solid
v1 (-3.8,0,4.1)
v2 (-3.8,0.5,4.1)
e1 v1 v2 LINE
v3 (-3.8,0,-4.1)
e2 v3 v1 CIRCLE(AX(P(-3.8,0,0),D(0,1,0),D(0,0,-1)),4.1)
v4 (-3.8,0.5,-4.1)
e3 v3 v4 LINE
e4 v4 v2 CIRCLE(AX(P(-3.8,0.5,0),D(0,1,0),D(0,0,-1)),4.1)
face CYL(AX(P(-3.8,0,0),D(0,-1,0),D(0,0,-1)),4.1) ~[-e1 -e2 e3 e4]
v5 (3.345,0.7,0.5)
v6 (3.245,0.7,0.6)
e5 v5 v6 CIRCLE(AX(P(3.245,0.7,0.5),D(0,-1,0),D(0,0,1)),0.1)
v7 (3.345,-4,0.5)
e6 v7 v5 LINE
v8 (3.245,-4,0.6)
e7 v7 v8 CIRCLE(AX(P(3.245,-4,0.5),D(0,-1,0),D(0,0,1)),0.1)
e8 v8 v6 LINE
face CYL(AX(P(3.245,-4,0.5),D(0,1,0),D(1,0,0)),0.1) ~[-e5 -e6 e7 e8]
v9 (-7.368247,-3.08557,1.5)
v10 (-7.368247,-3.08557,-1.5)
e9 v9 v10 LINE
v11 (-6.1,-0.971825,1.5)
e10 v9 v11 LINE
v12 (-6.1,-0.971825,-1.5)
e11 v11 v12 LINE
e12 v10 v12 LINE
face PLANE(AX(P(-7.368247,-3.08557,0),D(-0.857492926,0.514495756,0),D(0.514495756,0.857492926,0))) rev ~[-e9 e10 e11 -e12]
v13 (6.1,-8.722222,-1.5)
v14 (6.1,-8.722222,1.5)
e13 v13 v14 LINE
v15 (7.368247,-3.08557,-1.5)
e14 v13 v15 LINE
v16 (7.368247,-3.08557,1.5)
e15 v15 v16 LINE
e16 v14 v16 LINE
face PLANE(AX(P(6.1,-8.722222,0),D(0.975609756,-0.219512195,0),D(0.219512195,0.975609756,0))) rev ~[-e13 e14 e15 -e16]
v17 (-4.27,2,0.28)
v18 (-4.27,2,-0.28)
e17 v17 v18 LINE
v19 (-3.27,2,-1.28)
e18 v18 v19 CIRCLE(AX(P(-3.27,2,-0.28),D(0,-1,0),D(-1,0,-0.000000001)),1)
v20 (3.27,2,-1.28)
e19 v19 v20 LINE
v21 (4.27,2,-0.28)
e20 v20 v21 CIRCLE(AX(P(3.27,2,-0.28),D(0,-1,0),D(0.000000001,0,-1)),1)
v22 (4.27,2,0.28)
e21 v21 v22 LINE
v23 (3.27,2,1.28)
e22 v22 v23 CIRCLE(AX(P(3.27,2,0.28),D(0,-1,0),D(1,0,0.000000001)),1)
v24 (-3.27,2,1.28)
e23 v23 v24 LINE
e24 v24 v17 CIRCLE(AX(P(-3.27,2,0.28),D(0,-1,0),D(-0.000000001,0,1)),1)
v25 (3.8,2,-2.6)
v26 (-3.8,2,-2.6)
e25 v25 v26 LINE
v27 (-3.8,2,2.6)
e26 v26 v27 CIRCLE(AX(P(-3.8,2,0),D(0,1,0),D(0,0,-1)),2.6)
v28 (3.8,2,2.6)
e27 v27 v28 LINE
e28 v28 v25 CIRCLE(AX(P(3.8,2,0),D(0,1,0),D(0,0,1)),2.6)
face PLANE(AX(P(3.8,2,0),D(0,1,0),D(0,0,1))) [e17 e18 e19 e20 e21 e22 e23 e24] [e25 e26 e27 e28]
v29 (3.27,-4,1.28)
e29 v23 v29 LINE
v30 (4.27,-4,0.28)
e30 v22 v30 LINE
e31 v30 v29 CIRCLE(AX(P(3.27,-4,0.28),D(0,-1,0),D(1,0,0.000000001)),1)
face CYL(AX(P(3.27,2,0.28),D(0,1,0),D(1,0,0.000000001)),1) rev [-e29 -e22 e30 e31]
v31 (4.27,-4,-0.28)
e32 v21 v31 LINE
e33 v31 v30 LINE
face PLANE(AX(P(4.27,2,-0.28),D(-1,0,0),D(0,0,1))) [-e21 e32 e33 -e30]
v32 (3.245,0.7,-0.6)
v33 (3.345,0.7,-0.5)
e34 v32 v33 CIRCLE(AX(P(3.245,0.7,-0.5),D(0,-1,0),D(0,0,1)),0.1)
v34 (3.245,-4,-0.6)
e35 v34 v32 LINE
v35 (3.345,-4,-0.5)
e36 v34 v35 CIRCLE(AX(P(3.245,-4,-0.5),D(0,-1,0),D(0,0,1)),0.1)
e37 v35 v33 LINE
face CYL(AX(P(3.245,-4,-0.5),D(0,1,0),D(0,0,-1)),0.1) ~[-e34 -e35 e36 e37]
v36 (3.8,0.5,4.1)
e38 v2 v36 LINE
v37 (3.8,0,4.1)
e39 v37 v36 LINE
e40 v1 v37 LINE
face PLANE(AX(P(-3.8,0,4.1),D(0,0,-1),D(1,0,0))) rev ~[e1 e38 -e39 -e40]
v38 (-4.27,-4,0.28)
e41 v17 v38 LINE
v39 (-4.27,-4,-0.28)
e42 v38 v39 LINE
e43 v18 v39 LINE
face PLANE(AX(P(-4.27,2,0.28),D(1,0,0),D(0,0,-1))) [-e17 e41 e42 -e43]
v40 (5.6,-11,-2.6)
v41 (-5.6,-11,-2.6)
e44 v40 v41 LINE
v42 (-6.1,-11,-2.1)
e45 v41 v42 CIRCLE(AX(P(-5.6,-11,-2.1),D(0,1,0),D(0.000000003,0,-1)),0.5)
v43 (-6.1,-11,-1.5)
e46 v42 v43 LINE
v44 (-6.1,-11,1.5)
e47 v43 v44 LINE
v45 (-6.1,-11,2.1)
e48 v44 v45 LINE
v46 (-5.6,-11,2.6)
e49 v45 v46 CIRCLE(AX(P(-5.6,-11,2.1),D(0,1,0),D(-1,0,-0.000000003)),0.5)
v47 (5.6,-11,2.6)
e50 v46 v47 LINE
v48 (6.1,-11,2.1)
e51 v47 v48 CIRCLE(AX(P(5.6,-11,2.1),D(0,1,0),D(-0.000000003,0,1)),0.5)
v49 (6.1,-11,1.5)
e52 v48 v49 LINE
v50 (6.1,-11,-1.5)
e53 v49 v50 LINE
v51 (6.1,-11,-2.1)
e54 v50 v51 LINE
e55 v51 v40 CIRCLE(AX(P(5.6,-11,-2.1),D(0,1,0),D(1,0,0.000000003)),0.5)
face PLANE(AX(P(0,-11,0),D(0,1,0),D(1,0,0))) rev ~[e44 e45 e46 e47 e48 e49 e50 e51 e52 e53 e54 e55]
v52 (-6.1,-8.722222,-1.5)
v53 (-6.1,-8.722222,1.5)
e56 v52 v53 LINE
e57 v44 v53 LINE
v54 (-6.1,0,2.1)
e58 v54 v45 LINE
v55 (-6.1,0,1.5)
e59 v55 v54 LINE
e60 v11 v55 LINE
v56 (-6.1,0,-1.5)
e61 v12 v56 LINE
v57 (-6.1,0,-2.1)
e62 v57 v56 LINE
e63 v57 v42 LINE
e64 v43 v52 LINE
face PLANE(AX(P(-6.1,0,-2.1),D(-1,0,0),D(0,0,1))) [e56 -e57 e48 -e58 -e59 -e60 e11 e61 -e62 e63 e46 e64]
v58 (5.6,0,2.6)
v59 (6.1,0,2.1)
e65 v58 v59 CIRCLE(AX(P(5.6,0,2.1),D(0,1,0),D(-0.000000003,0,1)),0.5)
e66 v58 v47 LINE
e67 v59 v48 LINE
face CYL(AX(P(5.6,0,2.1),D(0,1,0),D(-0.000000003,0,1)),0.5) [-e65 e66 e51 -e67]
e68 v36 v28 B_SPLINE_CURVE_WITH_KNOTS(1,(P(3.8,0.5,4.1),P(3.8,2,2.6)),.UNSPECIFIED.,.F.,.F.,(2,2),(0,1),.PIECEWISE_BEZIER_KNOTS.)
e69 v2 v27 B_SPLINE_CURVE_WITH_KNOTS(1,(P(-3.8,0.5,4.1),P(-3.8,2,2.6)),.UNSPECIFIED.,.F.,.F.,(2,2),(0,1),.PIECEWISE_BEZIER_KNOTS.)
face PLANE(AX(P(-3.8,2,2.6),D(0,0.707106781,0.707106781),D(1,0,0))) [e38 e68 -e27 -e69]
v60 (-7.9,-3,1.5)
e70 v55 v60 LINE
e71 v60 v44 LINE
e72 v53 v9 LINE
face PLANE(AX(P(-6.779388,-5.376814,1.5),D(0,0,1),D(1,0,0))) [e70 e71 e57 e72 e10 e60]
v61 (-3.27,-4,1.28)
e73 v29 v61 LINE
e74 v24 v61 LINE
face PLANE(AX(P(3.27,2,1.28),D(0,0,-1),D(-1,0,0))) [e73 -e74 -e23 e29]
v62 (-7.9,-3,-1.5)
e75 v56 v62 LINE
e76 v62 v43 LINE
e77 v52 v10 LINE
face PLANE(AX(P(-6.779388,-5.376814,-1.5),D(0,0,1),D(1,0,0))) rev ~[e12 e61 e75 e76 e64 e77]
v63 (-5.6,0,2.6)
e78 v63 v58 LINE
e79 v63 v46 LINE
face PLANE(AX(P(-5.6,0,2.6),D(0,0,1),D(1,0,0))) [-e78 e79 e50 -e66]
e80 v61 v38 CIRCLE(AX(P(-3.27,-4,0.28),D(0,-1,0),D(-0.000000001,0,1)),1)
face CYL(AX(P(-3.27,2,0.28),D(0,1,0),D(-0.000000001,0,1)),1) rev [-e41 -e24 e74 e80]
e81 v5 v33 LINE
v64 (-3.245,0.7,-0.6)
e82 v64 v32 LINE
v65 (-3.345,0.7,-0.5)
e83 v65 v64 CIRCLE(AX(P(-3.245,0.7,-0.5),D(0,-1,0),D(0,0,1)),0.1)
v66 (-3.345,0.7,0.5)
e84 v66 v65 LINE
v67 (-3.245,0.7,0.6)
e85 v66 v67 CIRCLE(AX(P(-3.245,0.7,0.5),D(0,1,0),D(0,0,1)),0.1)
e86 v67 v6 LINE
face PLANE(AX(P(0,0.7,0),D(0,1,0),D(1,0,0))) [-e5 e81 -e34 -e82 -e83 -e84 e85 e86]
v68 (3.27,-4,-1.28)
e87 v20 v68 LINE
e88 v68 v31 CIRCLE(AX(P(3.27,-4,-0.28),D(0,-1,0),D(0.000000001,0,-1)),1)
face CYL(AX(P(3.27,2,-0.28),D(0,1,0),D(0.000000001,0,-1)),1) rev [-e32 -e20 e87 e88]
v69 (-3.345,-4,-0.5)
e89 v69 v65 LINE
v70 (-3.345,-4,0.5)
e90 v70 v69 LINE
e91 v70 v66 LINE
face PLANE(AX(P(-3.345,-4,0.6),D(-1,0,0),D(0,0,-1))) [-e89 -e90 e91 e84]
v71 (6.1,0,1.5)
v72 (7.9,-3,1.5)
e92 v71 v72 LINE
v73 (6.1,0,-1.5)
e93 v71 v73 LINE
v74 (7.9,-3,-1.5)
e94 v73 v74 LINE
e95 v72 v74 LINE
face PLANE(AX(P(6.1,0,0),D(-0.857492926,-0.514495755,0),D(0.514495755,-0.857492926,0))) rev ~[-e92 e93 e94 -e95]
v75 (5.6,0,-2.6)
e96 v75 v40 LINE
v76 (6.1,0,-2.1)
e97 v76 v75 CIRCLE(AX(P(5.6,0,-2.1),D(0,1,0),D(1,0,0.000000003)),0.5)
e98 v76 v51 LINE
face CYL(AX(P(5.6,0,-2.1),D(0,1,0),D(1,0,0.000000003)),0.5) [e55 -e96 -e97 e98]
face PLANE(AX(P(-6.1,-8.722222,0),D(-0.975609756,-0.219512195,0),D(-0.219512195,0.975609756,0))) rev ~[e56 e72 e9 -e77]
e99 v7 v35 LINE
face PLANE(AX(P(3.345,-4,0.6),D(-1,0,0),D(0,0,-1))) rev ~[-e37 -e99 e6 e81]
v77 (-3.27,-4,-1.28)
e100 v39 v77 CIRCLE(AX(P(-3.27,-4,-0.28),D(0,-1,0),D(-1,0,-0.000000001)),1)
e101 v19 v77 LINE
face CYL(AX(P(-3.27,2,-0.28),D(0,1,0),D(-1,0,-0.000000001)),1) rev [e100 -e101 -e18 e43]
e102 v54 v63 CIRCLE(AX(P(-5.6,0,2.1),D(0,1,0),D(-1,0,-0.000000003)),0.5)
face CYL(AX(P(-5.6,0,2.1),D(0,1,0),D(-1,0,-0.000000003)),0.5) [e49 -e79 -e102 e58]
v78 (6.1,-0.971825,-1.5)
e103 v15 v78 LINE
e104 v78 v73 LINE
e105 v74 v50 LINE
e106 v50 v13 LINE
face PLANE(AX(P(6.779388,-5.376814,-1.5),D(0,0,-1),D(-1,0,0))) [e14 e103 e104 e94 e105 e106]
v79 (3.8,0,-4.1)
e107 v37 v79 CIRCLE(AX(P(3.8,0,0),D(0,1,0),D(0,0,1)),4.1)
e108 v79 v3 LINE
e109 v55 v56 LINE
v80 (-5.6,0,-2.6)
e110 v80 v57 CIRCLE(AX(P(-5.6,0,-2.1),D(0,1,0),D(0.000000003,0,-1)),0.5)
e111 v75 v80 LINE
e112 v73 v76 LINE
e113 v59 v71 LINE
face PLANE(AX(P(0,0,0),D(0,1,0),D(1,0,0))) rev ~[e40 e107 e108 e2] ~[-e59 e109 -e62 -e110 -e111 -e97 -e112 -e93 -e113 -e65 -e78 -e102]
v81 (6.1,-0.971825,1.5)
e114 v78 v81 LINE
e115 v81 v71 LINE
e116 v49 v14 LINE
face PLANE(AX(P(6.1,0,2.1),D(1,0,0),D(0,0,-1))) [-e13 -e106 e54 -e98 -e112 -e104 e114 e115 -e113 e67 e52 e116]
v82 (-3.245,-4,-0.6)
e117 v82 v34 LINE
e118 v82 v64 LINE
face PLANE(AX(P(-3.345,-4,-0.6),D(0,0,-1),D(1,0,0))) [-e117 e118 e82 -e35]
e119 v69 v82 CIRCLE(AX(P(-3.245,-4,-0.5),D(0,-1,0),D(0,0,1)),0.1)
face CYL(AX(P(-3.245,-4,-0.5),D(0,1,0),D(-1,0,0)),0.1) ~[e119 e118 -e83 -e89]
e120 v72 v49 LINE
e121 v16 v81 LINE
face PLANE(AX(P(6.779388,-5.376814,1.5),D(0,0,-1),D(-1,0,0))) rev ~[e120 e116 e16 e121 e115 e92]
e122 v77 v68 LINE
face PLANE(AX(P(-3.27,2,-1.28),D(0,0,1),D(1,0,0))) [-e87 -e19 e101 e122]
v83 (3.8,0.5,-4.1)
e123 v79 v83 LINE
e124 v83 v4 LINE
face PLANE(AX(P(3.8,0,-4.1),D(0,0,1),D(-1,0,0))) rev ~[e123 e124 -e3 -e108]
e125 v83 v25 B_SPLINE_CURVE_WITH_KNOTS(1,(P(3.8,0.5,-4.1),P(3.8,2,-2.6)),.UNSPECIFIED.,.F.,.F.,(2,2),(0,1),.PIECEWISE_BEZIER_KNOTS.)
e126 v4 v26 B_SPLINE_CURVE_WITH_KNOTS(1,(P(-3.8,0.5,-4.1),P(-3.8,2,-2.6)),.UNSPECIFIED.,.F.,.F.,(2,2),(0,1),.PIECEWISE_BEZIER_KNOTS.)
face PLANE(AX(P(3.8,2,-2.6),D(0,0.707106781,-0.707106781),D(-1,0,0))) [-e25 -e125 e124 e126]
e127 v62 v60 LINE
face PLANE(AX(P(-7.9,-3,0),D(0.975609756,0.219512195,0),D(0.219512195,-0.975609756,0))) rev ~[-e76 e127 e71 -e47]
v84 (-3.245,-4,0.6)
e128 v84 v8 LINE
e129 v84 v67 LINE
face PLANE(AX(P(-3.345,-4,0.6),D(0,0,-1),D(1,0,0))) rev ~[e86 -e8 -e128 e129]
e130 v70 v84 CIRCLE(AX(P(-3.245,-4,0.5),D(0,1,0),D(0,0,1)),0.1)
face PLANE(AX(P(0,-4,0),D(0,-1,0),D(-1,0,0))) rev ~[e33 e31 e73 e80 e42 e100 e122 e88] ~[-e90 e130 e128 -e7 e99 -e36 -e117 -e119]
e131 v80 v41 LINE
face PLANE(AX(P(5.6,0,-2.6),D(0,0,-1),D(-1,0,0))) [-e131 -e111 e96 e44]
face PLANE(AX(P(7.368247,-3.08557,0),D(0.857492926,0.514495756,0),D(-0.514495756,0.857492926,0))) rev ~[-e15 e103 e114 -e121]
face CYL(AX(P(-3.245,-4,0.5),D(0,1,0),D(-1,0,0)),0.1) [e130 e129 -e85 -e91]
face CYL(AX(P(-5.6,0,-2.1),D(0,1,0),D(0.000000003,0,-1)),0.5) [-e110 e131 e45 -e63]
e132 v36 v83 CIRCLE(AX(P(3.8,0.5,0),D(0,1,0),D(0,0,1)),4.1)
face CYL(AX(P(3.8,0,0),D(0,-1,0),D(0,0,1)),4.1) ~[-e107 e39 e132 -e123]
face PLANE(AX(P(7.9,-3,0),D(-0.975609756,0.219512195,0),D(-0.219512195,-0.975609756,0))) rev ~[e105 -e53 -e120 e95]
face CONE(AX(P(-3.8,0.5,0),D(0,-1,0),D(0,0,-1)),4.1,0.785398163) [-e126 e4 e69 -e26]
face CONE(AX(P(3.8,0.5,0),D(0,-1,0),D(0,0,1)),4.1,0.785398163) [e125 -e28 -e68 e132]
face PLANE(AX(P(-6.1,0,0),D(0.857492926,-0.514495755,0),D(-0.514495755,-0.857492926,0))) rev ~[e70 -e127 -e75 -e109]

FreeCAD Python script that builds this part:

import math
import FreeCAD as App
import Part
import Sketcher

V = App.Vector


def edges_at(feature, points):
    """Names of the edges that pass closest to the given points."""
    edges = feature.Shape.Edges
    near = lambda p: min(range(len(edges)), key=lambda i: edges[i].distToShape(Part.Vertex(*p))[0])
    return sorted({f"Edge{near(p) + 1}" for p in points})


def add_polygon(sketch, points):
    """Adds a closed chain of lines whose ends are joined by coincident constraints."""
    first, n = sketch.GeometryCount, len(points)
    for a, b in zip(points, points[1:] + points[:1]):
        sketch.addGeometry(Part.LineSegment(App.Vector(*a, 0), App.Vector(*b, 0)), False)
    for i in range(n):
        sketch.addConstraint(Sketcher.Constraint("Coincident", first + i, 2, first + (i + 1) % n, 1))

doc = App.newDocument("Part")
params = doc.addObject("Spreadsheet::Sheet", "Params")
for row, (alias, value) in enumerate([
    ("sketch1_radius", "0.5 mm"),
    ("sketch1_width", "11.2 mm"),
    ("sketch1_height", "4.2 mm"),
    ("pad1_length", "11 mm"),
    ("sketch2_radius", "4.1 mm"),
    ("sketch2_width", "7.6 mm"),
    ("pad2_length", "0.5 mm"),
    ("sketch3_radius", "4.1 mm"),
    ("sketch3_width", "7.6 mm"),
    ("pad3_length", "1.5 mm"),
    ("pad3_taper", "-45 deg"),
    ("sketch4_radius", "1 mm"),
    ("sketch4_width", "6.54 mm"),
    ("sketch4_height", "0.56 mm"),
    ("pocket1_length", "6 mm"),
    ("sketch5_height", "1.2 mm"),
    ("sketch5_width", "6.69 mm"),
    ("pad4_length", "4.7 mm"),
    ("fillet_radius", "0.1 mm"),
    ("sketch6_length", "8.2 mm"),
    ("pad5_length", "3 mm"),
], start=1):
    params.set(f"A{row}", alias)
    params.set(f"B{row}", "=" + value)
    params.setAlias(f"B{row}", alias)

body = doc.addObject("PartDesign::Body", "Body")

sketch1 = body.newObject("Sketcher::SketchObject", "Sketch")
sketch1.AttachmentSupport = (doc.getObject("XZ_Plane"), [""])
sketch1.MapMode = "FlatFace"
sketch1.addGeometry([
    Part.LineSegment(V(-5.6, 2.6, 0), V(5.6, 2.6, 0)),
    Part.ArcOfCircle(Part.Circle(V(5.6, 2.1, 0), V(0, 0, 1), 0.5), math.radians(0), math.radians(90)),
    Part.LineSegment(V(6.1, 2.1, 0), V(6.1, -2.1, 0)),
    Part.ArcOfCircle(Part.Circle(V(5.6, -2.1, 0), V(0, 0, 1), 0.5), math.radians(-90), math.radians(0)),
    Part.LineSegment(V(5.6, -2.6, 0), V(-5.6, -2.6, 0)),
    Part.ArcOfCircle(Part.Circle(V(-5.6, -2.1, 0), V(0, 0, 1), 0.5), math.radians(180), math.radians(270)),
    Part.LineSegment(V(-6.1, -2.1, 0), V(-6.1, 2.1, 0)),
    Part.ArcOfCircle(Part.Circle(V(-5.6, 2.1, 0), V(0, 0, 1), 0.5), math.radians(90), math.radians(180)),
], False)
sketch1.addConstraint([
    Sketcher.Constraint("Tangent", 0, 2, 1, 2),
    Sketcher.Constraint("Tangent", 1, 1, 2, 1),
    Sketcher.Constraint("Tangent", 2, 2, 3, 2),
    Sketcher.Constraint("Tangent", 3, 1, 4, 1),
    Sketcher.Constraint("Tangent", 4, 2, 5, 2),
    Sketcher.Constraint("Tangent", 5, 1, 6, 1),
    Sketcher.Constraint("Tangent", 6, 2, 7, 2),
    Sketcher.Constraint("Tangent", 7, 1, 0, 1),
    Sketcher.Constraint("Horizontal", 0),
    Sketcher.Constraint("Vertical", 2),
    Sketcher.Constraint("Horizontal", 4),
    Sketcher.Constraint("Vertical", 6),
    Sketcher.Constraint("Equal", 1, 3),
    Sketcher.Constraint("Equal", 3, 5),
    Sketcher.Constraint("Equal", 5, 7),
    Sketcher.Constraint("Symmetric", 1, 3, 5, 3, -1, 1),
    Sketcher.Constraint("Radius", 1, 0.5),
    Sketcher.Constraint("DistanceX", 0, 1, 0, 2, 11.2),
    Sketcher.Constraint("DistanceY", 2, 2, 2, 1, 4.2),
])
sketch1.setExpression("Constraints[16]", "Params.sketch1_radius")
sketch1.setExpression("Constraints[17]", "Params.sketch1_width")
sketch1.setExpression("Constraints[18]", "Params.sketch1_height")
pad1 = body.newObject("PartDesign::Pad", "Pad")
pad1.Profile = sketch1
pad1.setExpression("Length", "Params.pad1_length")

sketch2 = body.newObject("Sketcher::SketchObject", "Sketch001")
sketch2.AttachmentSupport = (doc.getObject("XZ_Plane"), [""])
sketch2.MapMode = "FlatFace"
sketch2.addGeometry([
    Part.LineSegment(V(-3.8, 4.1, 0), V(3.8, 4.1, 0)),
    Part.ArcOfCircle(Part.Circle(V(3.8, 0, 0), V(0, 0, 1), 4.1), math.radians(-90), math.radians(90)),
    Part.LineSegment(V(3.8, -4.1, 0), V(-3.8, -4.1, 0)),
    Part.ArcOfCircle(Part.Circle(V(-3.8, 0, 0), V(0, 0, 1), 4.1), math.radians(90), math.radians(270)),
], False)
sketch2.addConstraint([
    Sketcher.Constraint("Tangent", 0, 2, 1, 2),
    Sketcher.Constraint("Tangent", 1, 1, 2, 1),
    Sketcher.Constraint("Tangent", 2, 2, 3, 2),
    Sketcher.Constraint("Tangent", 3, 1, 0, 1),
    Sketcher.Constraint("Horizontal", 0),
    Sketcher.Constraint("Horizontal", 2),
    Sketcher.Constraint("Symmetric", 1, 3, 3, 3, -1, 1),
    Sketcher.Constraint("Radius", 1, 4.1),
    Sketcher.Constraint("DistanceX", 0, 1, 0, 2, 7.6),
])
sketch2.setExpression("Constraints[7]", "Params.sketch2_radius")
sketch2.setExpression("Constraints[8]", "Params.sketch2_width")
pad2 = body.newObject("PartDesign::Pad", "Pad001")
pad2.Profile = sketch2
pad2.setExpression("Length", "Params.pad2_length")
pad2.Reversed = True

sketch3 = body.newObject("Sketcher::SketchObject", "Sketch002")
sketch3.AttachmentSupport = (doc.getObject("XZ_Plane"), [""])
sketch3.MapMode = "FlatFace"
sketch3.AttachmentOffset = App.Placement(V(0, 0, -0.5), App.Rotation())
sketch3.addGeometry([
    Part.LineSegment(V(-3.8, 4.1, 0), V(3.8, 4.1, 0)),
    Part.ArcOfCircle(Part.Circle(V(3.8, 0, 0), V(0, 0, 1), 4.1), math.radians(-90), math.radians(90)),
    Part.LineSegment(V(3.8, -4.1, 0), V(-3.8, -4.1, 0)),
    Part.ArcOfCircle(Part.Circle(V(-3.8, 0, 0), V(0, 0, 1), 4.1), math.radians(90), math.radians(270)),
], False)
sketch3.addConstraint([
    Sketcher.Constraint("Tangent", 0, 2, 1, 2),
    Sketcher.Constraint("Tangent", 1, 1, 2, 1),
    Sketcher.Constraint("Tangent", 2, 2, 3, 2),
    Sketcher.Constraint("Tangent", 3, 1, 0, 1),
    Sketcher.Constraint("Horizontal", 0),
    Sketcher.Constraint("Horizontal", 2),
    Sketcher.Constraint("Symmetric", 1, 3, 3, 3, -1, 1),
    Sketcher.Constraint("Radius", 1, 4.1),
    Sketcher.Constraint("DistanceX", 0, 1, 0, 2, 7.6),
])
sketch3.setExpression("Constraints[7]", "Params.sketch3_radius")
sketch3.setExpression("Constraints[8]", "Params.sketch3_width")
pad3 = body.newObject("PartDesign::Pad", "Pad002")
pad3.Profile = sketch3
pad3.setExpression("Length", "Params.pad3_length")
pad3.Reversed = True
pad3.setExpression("TaperAngle", "Params.pad3_taper")

sketch4 = body.newObject("Sketcher::SketchObject", "Sketch003")
sketch4.AttachmentSupport = (doc.getObject("XZ_Plane"), [""])
sketch4.MapMode = "FlatFace"
sketch4.AttachmentOffset = App.Placement(V(0, 0, -2), App.Rotation())
sketch4.addGeometry([
    Part.LineSegment(V(3.3, -1.3, 0), V(-3.3, -1.3, 0)),
    Part.ArcOfCircle(Part.Circle(V(-3.3, -0.3, 0), V(0, 0, 1), 1), math.radians(-180), math.radians(-90)),
    Part.LineSegment(V(-4.3, -0.3, 0), V(-4.3, 0.3, 0)),
    Part.ArcOfCircle(Part.Circle(V(-3.3, 0.3, 0), V(0, 0, 1), 1), math.radians(90), math.radians(180)),
    Part.LineSegment(V(-3.3, 1.3, 0), V(3.3, 1.3, 0)),
    Part.ArcOfCircle(Part.Circle(V(3.3, 0.3, 0), V(0, 0, 1), 1), math.radians(0), math.radians(90)),
    Part.LineSegment(V(4.3, 0.3, 0), V(4.3, -0.3, 0)),
    Part.ArcOfCircle(Part.Circle(V(3.3, -0.3, 0), V(0, 0, 1), 1), math.radians(-90), math.radians(0)),
], False)
sketch4.addConstraint([
    Sketcher.Constraint("Tangent", 0, 2, 1, 2),
    Sketcher.Constraint("Tangent", 1, 1, 2, 1),
    Sketcher.Constraint("Tangent", 2, 2, 3, 2),
    Sketcher.Constraint("Tangent", 3, 1, 4, 1),
    Sketcher.Constraint("Tangent", 4, 2, 5, 2),
    Sketcher.Constraint("Tangent", 5, 1, 6, 1),
    Sketcher.Constraint("Tangent", 6, 2, 7, 2),
    Sketcher.Constraint("Tangent", 7, 1, 0, 1),
    Sketcher.Constraint("Horizontal", 0),
    Sketcher.Constraint("Vertical", 2),
    Sketcher.Constraint("Horizontal", 4),
    Sketcher.Constraint("Vertical", 6),
    Sketcher.Constraint("Equal", 1, 3),
    Sketcher.Constraint("Equal", 3, 5),
    Sketcher.Constraint("Equal", 5, 7),
    Sketcher.Constraint("Symmetric", 1, 3, 5, 3, -1, 1),
    Sketcher.Constraint("Radius", 1, 1.0),
    Sketcher.Constraint("DistanceX", 0, 2, 0, 1, 6.54),
    Sketcher.Constraint("DistanceY", 2, 1, 2, 2, 0.56),
])
sketch4.setExpression("Constraints[16]", "Params.sketch4_radius")
sketch4.setExpression("Constraints[17]", "Params.sketch4_width")
sketch4.setExpression("Constraints[18]", "Params.sketch4_height")
pocket1 = body.newObject("PartDesign::Pocket", "Pocket")
pocket1.Profile = sketch4
pocket1.setExpression("Length", "Params.pocket1_length")
pocket1.Reversed = True

sketch5 = body.newObject("Sketcher::SketchObject", "Sketch004")
sketch5.AttachmentSupport = (doc.getObject("XZ_Plane"), [""])
sketch5.MapMode = "FlatFace"
sketch5.AttachmentOffset = App.Placement(V(0, 0, 4), App.Rotation())
add_polygon(sketch5, [(-3.3, -0.6), (-3.3, 0.6), (3.3, 0.6), (3.3, -0.6)])
sketch5.addConstraint([
    Sketcher.Constraint("Vertical", 0),
    Sketcher.Constraint("Horizontal", 1),
    Sketcher.Constraint("Vertical", 2),
    Sketcher.Constraint("Horizontal", 3),
    Sketcher.Constraint("Symmetric", 0, 2, 2, 2, -1, 1),
    Sketcher.Constraint("DistanceY", 0, 1, 0, 2, 1.2),
    Sketcher.Constraint("DistanceX", 1, 1, 1, 2, 6.69),
])
sketch5.setExpression("Constraints[9]", "Params.sketch5_height")
sketch5.setExpression("Constraints[10]", "Params.sketch5_width")
pad4 = body.newObject("PartDesign::Pad", "Pad003")
pad4.Profile = sketch5
pad4.setExpression("Length", "Params.pad4_length")
pad4.Reversed = True
doc.recompute()

fillet = body.newObject("PartDesign::Fillet", "Fillet")
fillet.Base = (pad4, edges_at(pad4, [
    (3.345, -1.65, 0.6),
    (3.345, -1.65, -0.6),
    (-3.345, -1.65, -0.6),
    (-3.345, -1.65, 0.6),
]))
fillet.setExpression("Radius", "Params.fillet_radius")

sketch6 = body.newObject("Sketcher::SketchObject", "Sketch005")
sketch6.AttachmentSupport = (doc.getObject("XY_Plane"), [""])
sketch6.MapMode = "FlatFace"
add_polygon(sketch6, [(-6.1, 0), (-7.9, -3), (-6.1, -11), (-6.1, -8.7), (-7.4, -3.1), (-6.1, -1)])
add_polygon(sketch6, [(6.1, 0), (6.1, -1), (7.4, -3.1), (6.1, -8.7), (6.1, -11), (7.9, -3)])
sketch6.addConstraint([
    Sketcher.Constraint("Vertical", 2),
    Sketcher.Constraint("Vertical", 5),
    Sketcher.Constraint("Vertical", 6),
    Sketcher.Constraint("Vertical", 9),
    Sketcher.Constraint("Symmetric", 5, 2, 11, 2, -1, 1),
    Sketcher.Constraint("Symmetric", 3, 2, 7, 2, -2),
    Sketcher.Constraint("Symmetric", 2, 2, 8, 2, -2),
    Sketcher.Constraint("Symmetric", 0, 2, 10, 2, -2),
    Sketcher.Constraint("PointOnObject", 5, 2, -1),
    Sketcher.Constraint("Parallel", 1, 3),
    Sketcher.Constraint("Parallel", 0, 4),
    Sketcher.Constraint("Parallel", 8, 10),
    Sketcher.Constraint("Parallel", 7, 11),
    Sketcher.Constraint("Vertical", 2, 2, 4, 2),
    Sketcher.Constraint("DistanceY", 0, 2, -1, 1, 3.0),
    Sketcher.Constraint("DistanceY", 1, 2, -1, 1, 11.0),
    Sketcher.Constraint("DistanceX", 0, 2, 6, 2, 14.0),
    Sketcher.Constraint("Distance", 1, 8.2),
    Sketcher.Constraint("Distance", 3, 5.777569),
    Sketcher.Constraint("DistanceY", 2, 1, 2, 2, 2.277778),
])
sketch6.setExpression("Constraints[29]", "Params.sketch6_length")
pad5 = body.newObject("PartDesign::Pad", "Pad004")
pad5.Profile = sketch6
pad5.setExpression("Length", "Params.pad5_length")
pad5.Midplane = True

doc.recompute()
